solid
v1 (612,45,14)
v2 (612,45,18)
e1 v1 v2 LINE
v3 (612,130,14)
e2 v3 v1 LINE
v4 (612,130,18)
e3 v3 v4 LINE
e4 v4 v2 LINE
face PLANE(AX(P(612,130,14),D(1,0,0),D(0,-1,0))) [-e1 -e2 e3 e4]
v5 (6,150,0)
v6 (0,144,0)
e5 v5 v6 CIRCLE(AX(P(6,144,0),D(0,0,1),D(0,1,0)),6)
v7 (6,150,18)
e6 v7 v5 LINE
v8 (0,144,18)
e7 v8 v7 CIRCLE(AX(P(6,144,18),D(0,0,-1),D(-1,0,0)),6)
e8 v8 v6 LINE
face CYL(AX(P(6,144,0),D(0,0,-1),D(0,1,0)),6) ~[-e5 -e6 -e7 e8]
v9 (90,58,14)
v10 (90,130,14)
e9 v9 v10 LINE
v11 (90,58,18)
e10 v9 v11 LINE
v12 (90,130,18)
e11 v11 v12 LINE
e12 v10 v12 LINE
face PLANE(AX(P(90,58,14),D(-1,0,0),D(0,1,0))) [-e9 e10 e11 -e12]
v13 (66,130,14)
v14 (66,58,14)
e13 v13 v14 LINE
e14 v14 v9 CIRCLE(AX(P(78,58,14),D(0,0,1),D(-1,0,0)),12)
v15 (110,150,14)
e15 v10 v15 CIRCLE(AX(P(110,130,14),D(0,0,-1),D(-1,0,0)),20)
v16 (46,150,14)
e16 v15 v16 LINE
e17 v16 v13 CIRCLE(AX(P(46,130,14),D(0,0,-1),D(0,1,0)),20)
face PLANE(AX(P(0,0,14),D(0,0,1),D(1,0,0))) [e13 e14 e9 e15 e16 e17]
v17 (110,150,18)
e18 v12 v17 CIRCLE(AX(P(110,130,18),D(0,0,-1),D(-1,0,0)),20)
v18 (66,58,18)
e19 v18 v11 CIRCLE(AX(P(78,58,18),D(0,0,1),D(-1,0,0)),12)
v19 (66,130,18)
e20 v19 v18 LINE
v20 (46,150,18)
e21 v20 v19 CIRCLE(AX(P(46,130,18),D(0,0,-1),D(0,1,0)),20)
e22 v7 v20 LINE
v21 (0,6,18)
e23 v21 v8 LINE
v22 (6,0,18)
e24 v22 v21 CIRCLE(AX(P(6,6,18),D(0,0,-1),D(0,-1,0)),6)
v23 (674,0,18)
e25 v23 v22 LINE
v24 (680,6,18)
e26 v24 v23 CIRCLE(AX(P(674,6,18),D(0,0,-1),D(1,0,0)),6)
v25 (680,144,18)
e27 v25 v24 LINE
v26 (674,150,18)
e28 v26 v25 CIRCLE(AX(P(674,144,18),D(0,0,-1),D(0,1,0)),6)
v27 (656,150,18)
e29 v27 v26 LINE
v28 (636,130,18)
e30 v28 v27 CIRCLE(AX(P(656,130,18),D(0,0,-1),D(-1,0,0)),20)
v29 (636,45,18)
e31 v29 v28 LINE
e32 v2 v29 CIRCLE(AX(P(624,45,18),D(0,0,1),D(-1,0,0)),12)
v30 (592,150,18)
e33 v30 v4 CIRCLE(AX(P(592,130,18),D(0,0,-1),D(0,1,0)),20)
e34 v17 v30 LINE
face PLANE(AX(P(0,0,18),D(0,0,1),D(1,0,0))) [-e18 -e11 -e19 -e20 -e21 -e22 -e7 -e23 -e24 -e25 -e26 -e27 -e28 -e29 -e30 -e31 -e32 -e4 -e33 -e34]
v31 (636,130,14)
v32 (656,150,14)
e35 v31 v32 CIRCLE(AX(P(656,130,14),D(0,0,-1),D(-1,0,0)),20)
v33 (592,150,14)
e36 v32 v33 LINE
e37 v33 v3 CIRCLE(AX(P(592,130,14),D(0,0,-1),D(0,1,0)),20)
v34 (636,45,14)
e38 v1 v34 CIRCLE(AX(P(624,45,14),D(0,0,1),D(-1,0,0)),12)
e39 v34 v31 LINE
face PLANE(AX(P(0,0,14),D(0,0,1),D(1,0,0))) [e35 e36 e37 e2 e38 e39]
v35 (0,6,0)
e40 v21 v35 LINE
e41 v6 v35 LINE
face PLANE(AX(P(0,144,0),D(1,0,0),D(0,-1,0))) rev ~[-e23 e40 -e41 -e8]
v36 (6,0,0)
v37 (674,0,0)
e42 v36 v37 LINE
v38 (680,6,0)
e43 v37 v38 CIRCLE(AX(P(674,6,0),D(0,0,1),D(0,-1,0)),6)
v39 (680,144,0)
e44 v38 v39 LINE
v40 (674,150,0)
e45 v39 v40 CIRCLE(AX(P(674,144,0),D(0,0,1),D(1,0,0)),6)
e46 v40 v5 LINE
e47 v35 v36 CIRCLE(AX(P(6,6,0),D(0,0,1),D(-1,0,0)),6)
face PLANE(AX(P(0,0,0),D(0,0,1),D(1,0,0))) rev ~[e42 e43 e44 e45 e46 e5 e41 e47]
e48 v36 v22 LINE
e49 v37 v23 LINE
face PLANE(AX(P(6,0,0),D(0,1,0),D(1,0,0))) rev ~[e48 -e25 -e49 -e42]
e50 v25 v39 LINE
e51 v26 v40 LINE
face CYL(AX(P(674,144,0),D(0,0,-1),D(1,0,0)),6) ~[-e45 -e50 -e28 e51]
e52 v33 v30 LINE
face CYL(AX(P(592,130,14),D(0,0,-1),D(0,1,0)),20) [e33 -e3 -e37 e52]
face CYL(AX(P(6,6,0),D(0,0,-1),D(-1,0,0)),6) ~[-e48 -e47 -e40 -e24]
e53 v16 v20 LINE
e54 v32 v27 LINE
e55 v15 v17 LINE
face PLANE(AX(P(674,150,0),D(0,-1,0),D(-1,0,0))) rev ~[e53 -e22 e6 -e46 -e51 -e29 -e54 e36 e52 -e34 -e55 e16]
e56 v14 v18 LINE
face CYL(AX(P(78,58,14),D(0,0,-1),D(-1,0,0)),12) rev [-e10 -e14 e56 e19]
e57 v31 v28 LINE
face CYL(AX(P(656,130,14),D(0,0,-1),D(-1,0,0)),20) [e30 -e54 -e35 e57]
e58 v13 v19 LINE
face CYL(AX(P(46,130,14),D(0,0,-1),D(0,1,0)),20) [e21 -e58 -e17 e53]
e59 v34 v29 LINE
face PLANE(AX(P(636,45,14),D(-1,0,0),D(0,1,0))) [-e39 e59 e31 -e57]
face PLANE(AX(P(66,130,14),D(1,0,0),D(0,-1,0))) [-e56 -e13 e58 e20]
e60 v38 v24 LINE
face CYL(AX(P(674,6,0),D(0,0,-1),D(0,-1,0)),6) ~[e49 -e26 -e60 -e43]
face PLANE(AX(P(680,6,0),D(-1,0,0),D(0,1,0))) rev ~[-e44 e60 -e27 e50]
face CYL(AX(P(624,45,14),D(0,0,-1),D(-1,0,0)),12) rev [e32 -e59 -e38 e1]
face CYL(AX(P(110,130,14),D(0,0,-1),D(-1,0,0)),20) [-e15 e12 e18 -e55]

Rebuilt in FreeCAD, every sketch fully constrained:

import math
import FreeCAD as App
import Part
import Sketcher
from FreeCAD import Vector

doc = App.newDocument("Part")
params = doc.addObject("Spreadsheet::Sheet", "Params")
for row, (alias, value) in enumerate([
    ("sketch1_radius", "6 mm"),
    ("pad1_length", "14 mm"),
    ("sketch2_radius", "12 mm"),
    ("sketch2_radius2", "20 mm"),
    ("sketch2_radius3", "6 mm"),
    ("sketch2_width", "40 mm"),
    ("sketch2_width2", "668 mm"),
    ("pad2_length", "4 mm"),
], start=1):
    params.set(f"A{row}", alias)
    params.set(f"B{row}", "=" + value)
    params.setAlias(f"B{row}", alias)

body = doc.addObject("PartDesign::Body", "Body")

# Sketch on XY plane
sketch1 = body.newObject("Sketcher::SketchObject", "Sketch")
sketch1.AttachmentSupport = (doc.getObject("XY_Plane"), [""])
sketch1.MapMode = "FlatFace"
sketch1.addGeometry([
    Part.ArcOfCircle(Part.Circle(Vector(6, 6, 0), Vector(0, 0, 1), 6), math.radians(180), math.radians(270)),  # 0
    Part.LineSegment(Vector(6, 0, 0), Vector(674, 0, 0)),  # 1
    Part.ArcOfCircle(Part.Circle(Vector(674, 6, 0), Vector(0, 0, 1), 6), math.radians(-90), math.radians(0)),  # 2
    Part.LineSegment(Vector(680, 6, 0), Vector(680, 144, 0)),  # 3
    Part.ArcOfCircle(Part.Circle(Vector(674, 144, 0), Vector(0, 0, 1), 6), math.radians(0), math.radians(90)),  # 4
    Part.LineSegment(Vector(674, 150, 0), Vector(6, 150, 0)),  # 5
    Part.ArcOfCircle(Part.Circle(Vector(6, 144, 0), Vector(0, 0, 1), 6), math.radians(90), math.radians(180)),  # 6
    Part.LineSegment(Vector(0, 144, 0), Vector(0, 6, 0)),  # 7
], False)
sketch1.addConstraint([
    Sketcher.Constraint("Tangent", 0, 2, 1, 1),
    Sketcher.Constraint("Tangent", 1, 2, 2, 1),
    Sketcher.Constraint("Tangent", 2, 2, 3, 1),
    Sketcher.Constraint("Tangent", 3, 2, 4, 1),
    Sketcher.Constraint("Tangent", 4, 2, 5, 1),
    Sketcher.Constraint("Tangent", 5, 2, 6, 1),
    Sketcher.Constraint("Tangent", 6, 2, 7, 1),
    Sketcher.Constraint("Tangent", 7, 2, 0, 1),
    Sketcher.Constraint("Horizontal", 1),
    Sketcher.Constraint("Vertical", 3),
    Sketcher.Constraint("Horizontal", 5),
    Sketcher.Constraint("Vertical", 7),
    Sketcher.Constraint("Equal", 0, 2),
    Sketcher.Constraint("Equal", 2, 4),
    Sketcher.Constraint("Equal", 4, 6),
    Sketcher.Constraint("PointOnObject", 0, 2, -1),
    Sketcher.Constraint("PointOnObject", 6, 2, -2),
    Sketcher.Constraint("Radius", 0, 6.0),
    Sketcher.Constraint("DistanceX", -1, 1, 2, 2, 680.0),
    Sketcher.Constraint("DistanceY", -1, 1, 4, 2, 150.0),
])
sketch1.setExpression("Constraints[17]", "Params.sketch1_radius")
pad1 = body.newObject("PartDesign::Pad", "Pad")
pad1.Profile = sketch1
pad1.setExpression("Length", "Params.pad1_length")

# Sketch on XY plane
sketch2 = body.newObject("Sketcher::SketchObject", "Sketch001")
sketch2.AttachmentSupport = (doc.getObject("XY_Plane"), [""])
sketch2.MapMode = "FlatFace"
sketch2.AttachmentOffset = App.Placement(Vector(0, 0, 14), App.Rotation())
sketch2.addGeometry([
    Part.ArcOfCircle(Part.Circle(Vector(78, 58, 0), Vector(0, 0, 1), 12), math.radians(180), math.radians(360)),  # 0
    Part.LineSegment(Vector(66, 58, 0), Vector(66, 130, 0)),  # 1
    Part.ArcOfCircle(Part.Circle(Vector(46, 130, 0), Vector(0, 0, 1), 20), math.radians(0), math.radians(90)),  # 2
    Part.LineSegment(Vector(46, 150, 0), Vector(6, 150, 0)),  # 3
    Part.ArcOfCircle(Part.Circle(Vector(6, 144, 0), Vector(0, 0, 1), 6), math.radians(90), math.radians(180)),  # 4
    Part.LineSegment(Vector(0, 144, 0), Vector(0, 6, 0)),  # 5
    Part.ArcOfCircle(Part.Circle(Vector(6, 6, 0), Vector(0, 0, 1), 6), math.radians(180), math.radians(270)),  # 6
    Part.LineSegment(Vector(6, 0, 0), Vector(674, 0, 0)),  # 7
    Part.ArcOfCircle(Part.Circle(Vector(674, 6, 0), Vector(0, 0, 1), 6), math.radians(-90), math.radians(0)),  # 8
    Part.LineSegment(Vector(680, 6, 0), Vector(680, 144, 0)),  # 9
    Part.ArcOfCircle(Part.Circle(Vector(674, 144, 0), Vector(0, 0, 1), 6), math.radians(0), math.radians(90)),  # 10
    Part.LineSegment(Vector(674, 150, 0), Vector(656, 150, 0)),  # 11
    Part.ArcOfCircle(Part.Circle(Vector(656, 130, 0), Vector(0, 0, 1), 20), math.radians(90), math.radians(180)),  # 12
    Part.LineSegment(Vector(636, 130, 0), Vector(636, 45, 0)),  # 13
    Part.ArcOfCircle(Part.Circle(Vector(624, 45, 0), Vector(0, 0, 1), 12), math.radians(180), math.radians(360)),  # 14
    Part.LineSegment(Vector(612, 45, 0), Vector(612, 130, 0)),  # 15
    Part.ArcOfCircle(Part.Circle(Vector(592, 130, 0), Vector(0, 0, 1), 20), math.radians(0), math.radians(90)),  # 16
    Part.LineSegment(Vector(592, 150, 0), Vector(110, 150, 0)),  # 17
    Part.ArcOfCircle(Part.Circle(Vector(110, 130, 0), Vector(0, 0, 1), 20), math.radians(90), math.radians(180)),  # 18
    Part.LineSegment(Vector(90, 130, 0), Vector(90, 58, 0)),  # 19
], False)
sketch2.addConstraint([
    Sketcher.Constraint("Tangent", 0, 1, 1, 1),
    Sketcher.Constraint("Tangent", 1, 2, 2, 1),
    Sketcher.Constraint("Tangent", 2, 2, 3, 1),
    Sketcher.Constraint("Tangent", 3, 2, 4, 1),
    Sketcher.Constraint("Tangent", 4, 2, 5, 1),
    Sketcher.Constraint("Tangent", 5, 2, 6, 1),
    Sketcher.Constraint("Tangent", 6, 2, 7, 1),
    Sketcher.Constraint("Tangent", 7, 2, 8, 1),
    Sketcher.Constraint("Tangent", 8, 2, 9, 1),
    Sketcher.Constraint("Tangent", 9, 2, 10, 1),
    Sketcher.Constraint("Tangent", 10, 2, 11, 1),
    Sketcher.Constraint("Tangent", 11, 2, 12, 1),
    Sketcher.Constraint("Tangent", 12, 2, 13, 1),
    Sketcher.Constraint("Tangent", 13, 2, 14, 2),
    Sketcher.Constraint("Tangent", 14, 1, 15, 1),
    Sketcher.Constraint("Tangent", 15, 2, 16, 1),
    Sketcher.Constraint("Tangent", 16, 2, 17, 1),
    Sketcher.Constraint("Tangent", 17, 2, 18, 1),
    Sketcher.Constraint("Tangent", 18, 2, 19, 1),
    Sketcher.Constraint("Tangent", 19, 2, 0, 2),
    Sketcher.Constraint("Vertical", 1),
    Sketcher.Constraint("Horizontal", 3),
    Sketcher.Constraint("Vertical", 5),
    Sketcher.Constraint("Horizontal", 7),
    Sketcher.Constraint("Vertical", 9),
    Sketcher.Constraint("Horizontal", 11),
    Sketcher.Constraint("Vertical", 13),
    Sketcher.Constraint("Vertical", 15),
    Sketcher.Constraint("Horizontal", 17),
    Sketcher.Constraint("Vertical", 19),
    Sketcher.Constraint("Equal", 4, 6),
    Sketcher.Constraint("Equal", 6, 8),
    Sketcher.Constraint("Equal", 8, 10),
    Sketcher.Constraint("Equal", 2, 12),
    Sketcher.Constraint("Equal", 0, 14),
    Sketcher.Constraint("Equal", 12, 16),
    Sketcher.Constraint("Equal", 16, 18),
    Sketcher.Constraint("PointOnObject", 4, 2, -2),
    Sketcher.Constraint("PointOnObject", 6, 2, -1),
    Sketcher.Constraint("Horizontal", 4, 3, 10, 3),
    Sketcher.Constraint("Horizontal", 12, 3, 16, 3),
    Sketcher.Constraint("Radius", 0, 12.0),
    Sketcher.Constraint("Radius", 2, 20.0),
    Sketcher.Constraint("Radius", 4, 6.0),
    Sketcher.Constraint("DistanceX", 3, 2, 3, 1, 40.0),
    Sketcher.Constraint("DistanceX", 7, 1, 7, 2, 668.0),
    Sketcher.Constraint("DistanceX", 11, 2, 11, 1, 18.0),
    Sketcher.Constraint("DistanceY", 1, 1, 1, 2, 72.0),
    Sketcher.Constraint("DistanceY", 5, 2, 5, 1, 138.0),
    Sketcher.Constraint("DistanceY", 13, 2, 13, 1, 85.0),
])
sketch2.setExpression("Constraints[41]", "Params.sketch2_radius")
sketch2.setExpression("Constraints[42]", "Params.sketch2_radius2")
sketch2.setExpression("Constraints[43]", "Params.sketch2_radius3")
sketch2.setExpression("Constraints[44]", "Params.sketch2_width")
sketch2.setExpression("Constraints[45]", "Params.sketch2_width2")
pad2 = body.newObject("PartDesign::Pad", "Pad001")
pad2.Profile = sketch2
pad2.setExpression("Length", "Params.pad2_length")

doc.recompute()
